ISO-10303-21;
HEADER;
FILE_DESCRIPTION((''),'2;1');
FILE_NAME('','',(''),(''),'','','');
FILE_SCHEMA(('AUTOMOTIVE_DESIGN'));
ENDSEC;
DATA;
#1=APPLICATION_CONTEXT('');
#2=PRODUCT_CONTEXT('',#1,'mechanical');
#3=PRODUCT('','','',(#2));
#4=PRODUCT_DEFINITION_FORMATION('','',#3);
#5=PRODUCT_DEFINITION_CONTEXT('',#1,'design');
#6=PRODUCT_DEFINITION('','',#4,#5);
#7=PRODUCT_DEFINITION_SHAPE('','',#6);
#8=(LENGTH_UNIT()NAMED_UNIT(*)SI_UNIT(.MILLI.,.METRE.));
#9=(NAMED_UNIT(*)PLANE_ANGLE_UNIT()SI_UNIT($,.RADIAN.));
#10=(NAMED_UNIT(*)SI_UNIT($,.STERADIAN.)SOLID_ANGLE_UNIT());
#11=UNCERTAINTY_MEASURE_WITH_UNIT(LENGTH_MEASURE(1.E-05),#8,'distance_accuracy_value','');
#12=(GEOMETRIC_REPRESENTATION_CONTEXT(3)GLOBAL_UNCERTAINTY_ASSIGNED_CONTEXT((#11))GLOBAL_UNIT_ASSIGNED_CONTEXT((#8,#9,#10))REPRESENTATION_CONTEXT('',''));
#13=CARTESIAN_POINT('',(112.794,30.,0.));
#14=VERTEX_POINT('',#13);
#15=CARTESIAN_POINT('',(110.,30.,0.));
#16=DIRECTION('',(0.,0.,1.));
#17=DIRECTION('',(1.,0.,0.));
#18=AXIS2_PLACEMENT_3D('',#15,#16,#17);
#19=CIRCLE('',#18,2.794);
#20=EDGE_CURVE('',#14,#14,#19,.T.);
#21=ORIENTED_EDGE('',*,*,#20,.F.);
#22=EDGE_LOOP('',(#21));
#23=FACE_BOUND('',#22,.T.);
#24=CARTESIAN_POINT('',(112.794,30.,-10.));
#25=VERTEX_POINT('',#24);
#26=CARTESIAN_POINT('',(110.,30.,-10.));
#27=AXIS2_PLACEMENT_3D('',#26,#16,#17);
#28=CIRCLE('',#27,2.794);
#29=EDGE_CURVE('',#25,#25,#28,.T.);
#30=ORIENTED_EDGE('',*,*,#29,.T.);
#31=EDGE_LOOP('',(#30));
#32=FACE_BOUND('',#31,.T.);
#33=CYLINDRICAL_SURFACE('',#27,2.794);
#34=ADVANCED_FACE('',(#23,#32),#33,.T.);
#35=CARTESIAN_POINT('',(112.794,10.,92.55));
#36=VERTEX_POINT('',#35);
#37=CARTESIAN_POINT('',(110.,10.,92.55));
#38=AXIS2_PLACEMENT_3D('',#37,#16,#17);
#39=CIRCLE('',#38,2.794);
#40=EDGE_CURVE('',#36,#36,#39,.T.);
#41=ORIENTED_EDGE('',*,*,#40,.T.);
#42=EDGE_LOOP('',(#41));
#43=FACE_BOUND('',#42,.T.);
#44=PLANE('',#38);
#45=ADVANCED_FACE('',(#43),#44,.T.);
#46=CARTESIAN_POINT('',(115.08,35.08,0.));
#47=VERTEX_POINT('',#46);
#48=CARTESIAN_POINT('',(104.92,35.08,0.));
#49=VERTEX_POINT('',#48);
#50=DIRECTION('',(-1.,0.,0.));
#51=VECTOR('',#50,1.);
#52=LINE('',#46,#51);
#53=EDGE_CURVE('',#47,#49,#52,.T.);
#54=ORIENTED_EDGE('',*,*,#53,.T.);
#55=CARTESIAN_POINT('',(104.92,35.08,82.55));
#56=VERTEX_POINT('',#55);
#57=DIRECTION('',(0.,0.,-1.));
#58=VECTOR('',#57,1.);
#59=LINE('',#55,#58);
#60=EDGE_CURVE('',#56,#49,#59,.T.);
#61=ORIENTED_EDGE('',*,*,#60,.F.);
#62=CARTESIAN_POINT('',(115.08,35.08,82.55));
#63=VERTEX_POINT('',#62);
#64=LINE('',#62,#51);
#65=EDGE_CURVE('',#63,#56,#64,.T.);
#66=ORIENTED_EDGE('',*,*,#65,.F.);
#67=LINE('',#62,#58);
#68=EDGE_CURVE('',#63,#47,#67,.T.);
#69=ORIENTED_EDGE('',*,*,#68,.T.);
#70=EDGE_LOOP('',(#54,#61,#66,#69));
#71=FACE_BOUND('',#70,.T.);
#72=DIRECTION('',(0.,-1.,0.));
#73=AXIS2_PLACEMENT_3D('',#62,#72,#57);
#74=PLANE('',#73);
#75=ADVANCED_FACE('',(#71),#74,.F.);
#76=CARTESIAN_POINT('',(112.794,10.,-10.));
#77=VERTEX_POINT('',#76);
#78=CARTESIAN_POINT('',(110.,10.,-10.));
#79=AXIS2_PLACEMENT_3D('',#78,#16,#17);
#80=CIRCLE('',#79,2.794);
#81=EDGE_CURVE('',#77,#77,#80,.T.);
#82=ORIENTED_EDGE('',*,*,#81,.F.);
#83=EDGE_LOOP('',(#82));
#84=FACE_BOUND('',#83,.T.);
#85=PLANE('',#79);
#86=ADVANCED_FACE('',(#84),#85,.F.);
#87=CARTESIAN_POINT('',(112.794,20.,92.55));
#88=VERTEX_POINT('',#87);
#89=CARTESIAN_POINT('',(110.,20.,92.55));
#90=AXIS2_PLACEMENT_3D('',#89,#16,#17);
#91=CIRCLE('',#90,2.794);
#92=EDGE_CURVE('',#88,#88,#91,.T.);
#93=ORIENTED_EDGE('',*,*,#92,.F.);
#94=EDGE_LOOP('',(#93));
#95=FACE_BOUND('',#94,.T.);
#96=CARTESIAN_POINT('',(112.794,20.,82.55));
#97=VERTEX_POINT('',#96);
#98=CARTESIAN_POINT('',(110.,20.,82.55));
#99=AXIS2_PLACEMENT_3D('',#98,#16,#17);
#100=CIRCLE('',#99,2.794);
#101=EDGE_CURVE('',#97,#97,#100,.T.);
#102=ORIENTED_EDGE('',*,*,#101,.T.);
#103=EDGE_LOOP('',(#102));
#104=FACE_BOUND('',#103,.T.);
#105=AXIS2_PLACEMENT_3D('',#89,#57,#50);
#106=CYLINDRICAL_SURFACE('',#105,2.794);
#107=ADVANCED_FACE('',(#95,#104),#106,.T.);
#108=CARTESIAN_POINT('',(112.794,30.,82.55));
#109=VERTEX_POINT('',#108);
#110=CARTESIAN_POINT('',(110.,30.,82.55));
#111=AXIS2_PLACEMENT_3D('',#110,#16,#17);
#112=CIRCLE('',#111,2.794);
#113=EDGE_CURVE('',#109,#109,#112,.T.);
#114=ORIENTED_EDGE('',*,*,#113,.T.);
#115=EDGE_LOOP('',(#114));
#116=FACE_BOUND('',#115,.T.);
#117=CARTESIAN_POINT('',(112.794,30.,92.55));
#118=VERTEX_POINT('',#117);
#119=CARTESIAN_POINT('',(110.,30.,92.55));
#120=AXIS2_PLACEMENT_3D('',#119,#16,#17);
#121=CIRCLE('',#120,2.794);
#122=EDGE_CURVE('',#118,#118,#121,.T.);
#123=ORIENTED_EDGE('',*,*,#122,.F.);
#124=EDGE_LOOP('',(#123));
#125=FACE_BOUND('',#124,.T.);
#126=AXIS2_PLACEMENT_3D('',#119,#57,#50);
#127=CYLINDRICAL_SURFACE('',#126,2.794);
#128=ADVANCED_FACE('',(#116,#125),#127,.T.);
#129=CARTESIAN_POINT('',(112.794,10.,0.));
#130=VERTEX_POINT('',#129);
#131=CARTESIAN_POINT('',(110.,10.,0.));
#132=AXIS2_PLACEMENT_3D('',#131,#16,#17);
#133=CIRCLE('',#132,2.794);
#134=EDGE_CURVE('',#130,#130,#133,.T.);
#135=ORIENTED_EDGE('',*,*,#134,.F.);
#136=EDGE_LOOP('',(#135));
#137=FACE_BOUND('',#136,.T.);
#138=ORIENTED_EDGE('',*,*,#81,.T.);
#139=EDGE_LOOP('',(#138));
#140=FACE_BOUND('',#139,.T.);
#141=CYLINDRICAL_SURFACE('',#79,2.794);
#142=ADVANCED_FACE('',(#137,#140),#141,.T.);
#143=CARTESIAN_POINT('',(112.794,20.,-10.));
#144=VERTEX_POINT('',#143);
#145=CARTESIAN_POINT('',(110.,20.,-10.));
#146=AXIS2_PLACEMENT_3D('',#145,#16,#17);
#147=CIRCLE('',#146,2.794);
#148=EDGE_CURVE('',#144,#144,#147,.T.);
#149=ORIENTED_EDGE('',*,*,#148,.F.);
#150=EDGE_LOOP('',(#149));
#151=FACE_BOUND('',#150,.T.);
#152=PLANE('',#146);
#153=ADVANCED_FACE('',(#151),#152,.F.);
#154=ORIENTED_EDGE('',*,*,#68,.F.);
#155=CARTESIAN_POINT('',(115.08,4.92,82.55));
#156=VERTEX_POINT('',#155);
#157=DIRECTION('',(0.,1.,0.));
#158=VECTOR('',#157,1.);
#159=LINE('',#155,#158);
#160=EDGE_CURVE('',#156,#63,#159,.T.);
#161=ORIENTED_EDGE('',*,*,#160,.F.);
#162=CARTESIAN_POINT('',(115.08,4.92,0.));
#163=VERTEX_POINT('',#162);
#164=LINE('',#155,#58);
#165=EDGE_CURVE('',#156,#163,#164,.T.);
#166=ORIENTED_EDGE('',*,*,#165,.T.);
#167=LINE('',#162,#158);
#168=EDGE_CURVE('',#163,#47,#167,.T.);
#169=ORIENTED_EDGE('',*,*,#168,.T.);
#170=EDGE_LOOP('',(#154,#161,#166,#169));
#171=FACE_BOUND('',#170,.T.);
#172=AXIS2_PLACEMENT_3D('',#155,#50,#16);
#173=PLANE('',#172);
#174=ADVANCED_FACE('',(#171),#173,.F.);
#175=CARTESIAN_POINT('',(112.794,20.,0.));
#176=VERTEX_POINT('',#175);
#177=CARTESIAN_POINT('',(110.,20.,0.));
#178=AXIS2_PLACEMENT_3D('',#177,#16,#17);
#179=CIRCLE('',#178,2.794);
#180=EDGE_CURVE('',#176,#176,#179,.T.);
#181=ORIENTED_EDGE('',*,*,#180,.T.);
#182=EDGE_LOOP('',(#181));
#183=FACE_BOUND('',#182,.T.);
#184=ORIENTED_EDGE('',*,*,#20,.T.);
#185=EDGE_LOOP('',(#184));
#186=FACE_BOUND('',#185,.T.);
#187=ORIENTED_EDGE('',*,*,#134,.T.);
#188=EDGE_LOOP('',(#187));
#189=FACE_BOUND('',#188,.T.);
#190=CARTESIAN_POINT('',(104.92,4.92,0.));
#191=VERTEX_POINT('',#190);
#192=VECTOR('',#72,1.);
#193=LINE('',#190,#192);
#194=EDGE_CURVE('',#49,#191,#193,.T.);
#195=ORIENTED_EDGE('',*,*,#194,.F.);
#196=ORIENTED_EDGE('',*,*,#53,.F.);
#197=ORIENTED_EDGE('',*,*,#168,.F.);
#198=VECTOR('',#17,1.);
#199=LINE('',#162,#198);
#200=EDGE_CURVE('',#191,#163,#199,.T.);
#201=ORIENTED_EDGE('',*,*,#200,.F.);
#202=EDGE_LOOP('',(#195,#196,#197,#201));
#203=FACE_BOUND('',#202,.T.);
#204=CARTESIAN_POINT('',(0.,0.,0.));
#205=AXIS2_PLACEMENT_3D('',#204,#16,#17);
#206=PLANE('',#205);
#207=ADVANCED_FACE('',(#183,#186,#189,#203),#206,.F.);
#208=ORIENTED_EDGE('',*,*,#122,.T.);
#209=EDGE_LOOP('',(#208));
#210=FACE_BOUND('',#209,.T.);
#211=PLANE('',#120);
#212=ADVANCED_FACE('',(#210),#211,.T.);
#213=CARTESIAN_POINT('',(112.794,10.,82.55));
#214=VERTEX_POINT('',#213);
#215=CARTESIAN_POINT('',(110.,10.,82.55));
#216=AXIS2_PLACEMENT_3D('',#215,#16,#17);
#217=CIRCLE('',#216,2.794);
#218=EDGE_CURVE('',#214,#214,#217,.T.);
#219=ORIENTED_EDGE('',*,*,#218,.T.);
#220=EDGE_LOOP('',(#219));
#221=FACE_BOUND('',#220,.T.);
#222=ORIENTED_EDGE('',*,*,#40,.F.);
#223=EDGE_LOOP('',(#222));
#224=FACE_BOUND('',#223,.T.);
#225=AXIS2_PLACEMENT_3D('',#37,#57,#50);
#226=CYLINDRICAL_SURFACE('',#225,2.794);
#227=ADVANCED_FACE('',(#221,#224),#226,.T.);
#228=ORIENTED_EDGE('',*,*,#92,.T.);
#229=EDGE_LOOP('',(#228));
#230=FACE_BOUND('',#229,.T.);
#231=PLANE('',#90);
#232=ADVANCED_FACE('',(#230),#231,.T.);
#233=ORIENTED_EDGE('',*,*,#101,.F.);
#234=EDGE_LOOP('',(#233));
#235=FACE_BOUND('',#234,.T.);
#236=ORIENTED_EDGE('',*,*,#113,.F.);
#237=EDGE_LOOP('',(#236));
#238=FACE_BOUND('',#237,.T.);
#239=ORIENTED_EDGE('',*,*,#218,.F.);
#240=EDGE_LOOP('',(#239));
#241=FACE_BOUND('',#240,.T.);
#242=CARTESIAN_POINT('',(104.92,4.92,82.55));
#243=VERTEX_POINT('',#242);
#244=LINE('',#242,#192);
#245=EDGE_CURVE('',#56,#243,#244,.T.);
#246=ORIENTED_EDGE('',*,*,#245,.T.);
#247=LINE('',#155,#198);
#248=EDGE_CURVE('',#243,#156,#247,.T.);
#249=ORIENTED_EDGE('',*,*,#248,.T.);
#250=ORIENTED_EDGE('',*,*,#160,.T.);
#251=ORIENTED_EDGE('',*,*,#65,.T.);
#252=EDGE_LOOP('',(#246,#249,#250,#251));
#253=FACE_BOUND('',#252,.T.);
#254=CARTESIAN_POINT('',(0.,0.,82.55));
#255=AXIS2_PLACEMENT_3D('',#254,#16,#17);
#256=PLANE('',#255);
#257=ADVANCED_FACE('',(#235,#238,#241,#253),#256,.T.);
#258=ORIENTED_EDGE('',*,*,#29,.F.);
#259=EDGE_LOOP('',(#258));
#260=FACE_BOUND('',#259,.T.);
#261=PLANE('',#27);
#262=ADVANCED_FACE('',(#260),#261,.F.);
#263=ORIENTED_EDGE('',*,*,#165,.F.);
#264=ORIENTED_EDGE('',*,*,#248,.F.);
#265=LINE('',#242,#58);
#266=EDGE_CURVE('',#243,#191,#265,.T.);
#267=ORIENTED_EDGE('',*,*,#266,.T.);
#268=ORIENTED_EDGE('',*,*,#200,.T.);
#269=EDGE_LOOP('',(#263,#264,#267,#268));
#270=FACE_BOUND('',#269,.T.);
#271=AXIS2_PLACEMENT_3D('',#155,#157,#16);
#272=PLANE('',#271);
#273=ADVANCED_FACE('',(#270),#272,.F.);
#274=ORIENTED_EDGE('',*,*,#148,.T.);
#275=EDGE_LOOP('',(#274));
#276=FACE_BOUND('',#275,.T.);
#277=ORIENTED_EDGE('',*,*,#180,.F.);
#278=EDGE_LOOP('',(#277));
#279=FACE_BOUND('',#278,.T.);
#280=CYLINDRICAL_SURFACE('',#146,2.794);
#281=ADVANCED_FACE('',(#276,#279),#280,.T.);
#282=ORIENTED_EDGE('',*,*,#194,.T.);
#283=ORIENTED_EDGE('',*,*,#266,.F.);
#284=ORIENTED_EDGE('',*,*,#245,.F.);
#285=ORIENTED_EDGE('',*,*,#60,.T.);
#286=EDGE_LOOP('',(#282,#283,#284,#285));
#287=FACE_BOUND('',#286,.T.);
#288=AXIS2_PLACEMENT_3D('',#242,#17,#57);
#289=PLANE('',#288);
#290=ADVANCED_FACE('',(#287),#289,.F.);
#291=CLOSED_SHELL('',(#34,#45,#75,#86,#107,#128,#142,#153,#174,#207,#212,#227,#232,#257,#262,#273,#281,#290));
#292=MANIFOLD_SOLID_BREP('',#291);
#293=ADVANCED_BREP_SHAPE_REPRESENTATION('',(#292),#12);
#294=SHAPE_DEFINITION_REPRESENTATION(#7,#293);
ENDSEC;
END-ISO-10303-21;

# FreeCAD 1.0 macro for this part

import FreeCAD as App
import Part
import Sketcher

V = App.Vector
Q = App.Units.Quantity


def add_polygon(sketch, points):
    """Adds a closed chain of lines whose ends are joined by coincident constraints."""
    first, n = sketch.GeometryCount, len(points)
    for a, b in zip(points, points[1:] + points[:1]):
        sketch.addGeometry(Part.LineSegment(App.Vector(*a, 0), App.Vector(*b, 0)), False)
    for i in range(n):
        sketch.addConstraint(Sketcher.Constraint("Coincident", first + i, 2, first + (i + 1) % n, 1))

doc = App.newDocument("Part")
params = doc.addObject("Spreadsheet::Sheet", "Params")
for row, (alias, value) in enumerate([
    ("sketch1_diameter", "0.22 in"),
    ("pad1_length", "10 mm"),
    ("sketch2_diameter", "0.22 in"),
    ("pad2_length", "10 mm"),
    ("sketch3_diameter", "0.22 in"),
    ("pad3_length", "10 mm"),
    ("sketch4_width", "0.4 in"),
    ("pad4_length", "3.25 in"),
    ("sketch5_diameter", "0.22 in"),
    ("pad5_length", "10 mm"),
], start=1):
    params.set(f"A{row}", alias)
    params.set(f"B{row}", "=" + value)
    params.setAlias(f"B{row}", alias)

body = doc.addObject("PartDesign::Body", "Body")

# Sketch on XY plane
sketch1 = body.newObject("Sketcher::SketchObject", "Sketch")
sketch1.AttachmentSupport = (doc.getObject("XY_Plane"), [""])
sketch1.MapMode = "FlatFace"
sketch1.addGeometry(Part.Circle(V(110, 20, 0), V(0, 0, 1), 2.8), False)
sketch1.addConstraint([
    Sketcher.Constraint("Diameter", 0, Q("0.22 in")),
    Sketcher.Constraint("DistanceX", -1, 1, 0, 3, Q("110 mm")),
    Sketcher.Constraint("DistanceY", -1, 1, 0, 3, Q("20 mm")),
])
sketch1.setExpression("Constraints[0]", "Params.sketch1_diameter")
pad1 = body.newObject("PartDesign::Pad", "Pad")
pad1.Profile = sketch1
pad1.setExpression("Length", "Params.pad1_length")
pad1.Reversed = True
body2 = doc.addObject("PartDesign::Body", "Body001")

# Sketch on XY plane
sketch2 = body2.newObject("Sketcher::SketchObject", "Sketch001")
sketch2.AttachmentSupport = (doc.getObject("XY_Plane001"), [""])
sketch2.MapMode = "FlatFace"
sketch2.addGeometry(Part.Circle(V(110, 10, 0), V(0, 0, 1), 2.8), False)
sketch2.addConstraint([
    Sketcher.Constraint("Diameter", 0, Q("0.22 in")),
    Sketcher.Constraint("DistanceX", -1, 1, 0, 3, Q("110 mm")),
    Sketcher.Constraint("DistanceY", -1, 1, 0, 3, Q("10 mm")),
])
sketch2.setExpression("Constraints[0]", "Params.sketch2_diameter")
pad2 = body2.newObject("PartDesign::Pad", "Pad001")
pad2.Profile = sketch2
pad2.setExpression("Length", "Params.pad2_length")
pad2.Reversed = True
body3 = doc.addObject("PartDesign::Body", "Body002")

# Sketch on XY plane
sketch3 = body3.newObject("Sketcher::SketchObject", "Sketch002")
sketch3.AttachmentSupport = (doc.getObject("XY_Plane002"), [""])
sketch3.MapMode = "FlatFace"
sketch3.addGeometry(Part.Circle(V(110, 30, 0), V(0, 0, 1), 2.8), False)
sketch3.addConstraint([
    Sketcher.Constraint("Diameter", 0, Q("0.22 in")),
    Sketcher.Constraint("DistanceX", -1, 1, 0, 3, Q("110 mm")),
    Sketcher.Constraint("DistanceY", -1, 1, 0, 3, Q("30 mm")),
])
sketch3.setExpression("Constraints[0]", "Params.sketch3_diameter")
pad3 = body3.newObject("PartDesign::Pad", "Pad002")
pad3.Profile = sketch3
pad3.setExpression("Length", "Params.pad3_length")
pad3.Reversed = True
body.AllowCompound = True
doc.recompute()

boolean = body.newObject("PartDesign::Boolean", "Boolean")
boolean.Type = "Fuse"
boolean.addObjects([body2])
doc.recompute()

boolean2 = body.newObject("PartDesign::Boolean", "Boolean001")
boolean2.Type = "Fuse"
boolean2.addObjects([body3])

# Sketch on XY plane
sketch4 = body.newObject("Sketcher::SketchObject", "Sketch003")
sketch4.AttachmentSupport = (doc.getObject("XY_Plane"), [""])
sketch4.MapMode = "FlatFace"
add_polygon(sketch4, [(105, 35), (105, 5), (115, 5), (115, 35)])  # lines 0-3
sketch4.addConstraint([
    Sketcher.Constraint("Vertical", 0),
    Sketcher.Constraint("Horizontal", 1),
    Sketcher.Constraint("Vertical", 2),
    Sketcher.Constraint("Horizontal", 3),
    Sketcher.Constraint("DistanceX", 1, 1, 1, 2, Q("0.4 in")),
    Sketcher.Constraint("DistanceY", 0, 2, 0, 1, Q("30.16 mm")),
    Sketcher.Constraint("DistanceX", -1, 1, 0, 2, Q("104.92 mm")),
    Sketcher.Constraint("DistanceY", -1, 1, 0, 2, Q("4.92 mm")),
])
sketch4.setExpression("Constraints[8]", "Params.sketch4_width")
pad4 = body.newObject("PartDesign::Pad", "Pad003")
pad4.Profile = sketch4
pad4.setExpression("Length", "Params.pad4_length")

# Sketch on XY plane
sketch5 = body.newObject("Sketcher::SketchObject", "Sketch004")
sketch5.AttachmentSupport = (doc.getObject("XY_Plane"), [""])
sketch5.MapMode = "FlatFace"
sketch5.AttachmentOffset = App.Placement(V(0, 0, 92.55), App.Rotation())
sketch5.addGeometry([
    Part.Circle(V(110, 10, 0), V(0, 0, 1), 2.8),
    Part.Circle(V(110, 20, 0), V(0, 0, 1), 2.8),
    Part.Circle(V(110, 30, 0), V(0, 0, 1), 2.8),
], False)
sketch5.addConstraint([
    Sketcher.Constraint("Equal", 0, 1),
    Sketcher.Constraint("Equal", 1, 2),
    Sketcher.Constraint("Vertical", 0, 3, 1, 3),
    Sketcher.Constraint("Vertical", 1, 3, 2, 3),
    Sketcher.Constraint("Diameter", 0, Q("0.22 in")),
    Sketcher.Constraint("DistanceX", -1, 1, 0, 3, Q("110 mm")),
    Sketcher.Constraint("DistanceY", -1, 1, 0, 3, Q("10 mm")),
    Sketcher.Constraint("DistanceY", -1, 1, 1, 3, Q("20 mm")),
    Sketcher.Constraint("DistanceY", -1, 1, 2, 3, Q("30 mm")),
])
sketch5.setExpression("Constraints[4]", "Params.sketch5_diameter")
pad5 = body.newObject("PartDesign::Pad", "Pad004")
pad5.Profile = sketch5
pad5.setExpression("Length", "Params.pad5_length")
pad5.Reversed = True

doc.recompute()
